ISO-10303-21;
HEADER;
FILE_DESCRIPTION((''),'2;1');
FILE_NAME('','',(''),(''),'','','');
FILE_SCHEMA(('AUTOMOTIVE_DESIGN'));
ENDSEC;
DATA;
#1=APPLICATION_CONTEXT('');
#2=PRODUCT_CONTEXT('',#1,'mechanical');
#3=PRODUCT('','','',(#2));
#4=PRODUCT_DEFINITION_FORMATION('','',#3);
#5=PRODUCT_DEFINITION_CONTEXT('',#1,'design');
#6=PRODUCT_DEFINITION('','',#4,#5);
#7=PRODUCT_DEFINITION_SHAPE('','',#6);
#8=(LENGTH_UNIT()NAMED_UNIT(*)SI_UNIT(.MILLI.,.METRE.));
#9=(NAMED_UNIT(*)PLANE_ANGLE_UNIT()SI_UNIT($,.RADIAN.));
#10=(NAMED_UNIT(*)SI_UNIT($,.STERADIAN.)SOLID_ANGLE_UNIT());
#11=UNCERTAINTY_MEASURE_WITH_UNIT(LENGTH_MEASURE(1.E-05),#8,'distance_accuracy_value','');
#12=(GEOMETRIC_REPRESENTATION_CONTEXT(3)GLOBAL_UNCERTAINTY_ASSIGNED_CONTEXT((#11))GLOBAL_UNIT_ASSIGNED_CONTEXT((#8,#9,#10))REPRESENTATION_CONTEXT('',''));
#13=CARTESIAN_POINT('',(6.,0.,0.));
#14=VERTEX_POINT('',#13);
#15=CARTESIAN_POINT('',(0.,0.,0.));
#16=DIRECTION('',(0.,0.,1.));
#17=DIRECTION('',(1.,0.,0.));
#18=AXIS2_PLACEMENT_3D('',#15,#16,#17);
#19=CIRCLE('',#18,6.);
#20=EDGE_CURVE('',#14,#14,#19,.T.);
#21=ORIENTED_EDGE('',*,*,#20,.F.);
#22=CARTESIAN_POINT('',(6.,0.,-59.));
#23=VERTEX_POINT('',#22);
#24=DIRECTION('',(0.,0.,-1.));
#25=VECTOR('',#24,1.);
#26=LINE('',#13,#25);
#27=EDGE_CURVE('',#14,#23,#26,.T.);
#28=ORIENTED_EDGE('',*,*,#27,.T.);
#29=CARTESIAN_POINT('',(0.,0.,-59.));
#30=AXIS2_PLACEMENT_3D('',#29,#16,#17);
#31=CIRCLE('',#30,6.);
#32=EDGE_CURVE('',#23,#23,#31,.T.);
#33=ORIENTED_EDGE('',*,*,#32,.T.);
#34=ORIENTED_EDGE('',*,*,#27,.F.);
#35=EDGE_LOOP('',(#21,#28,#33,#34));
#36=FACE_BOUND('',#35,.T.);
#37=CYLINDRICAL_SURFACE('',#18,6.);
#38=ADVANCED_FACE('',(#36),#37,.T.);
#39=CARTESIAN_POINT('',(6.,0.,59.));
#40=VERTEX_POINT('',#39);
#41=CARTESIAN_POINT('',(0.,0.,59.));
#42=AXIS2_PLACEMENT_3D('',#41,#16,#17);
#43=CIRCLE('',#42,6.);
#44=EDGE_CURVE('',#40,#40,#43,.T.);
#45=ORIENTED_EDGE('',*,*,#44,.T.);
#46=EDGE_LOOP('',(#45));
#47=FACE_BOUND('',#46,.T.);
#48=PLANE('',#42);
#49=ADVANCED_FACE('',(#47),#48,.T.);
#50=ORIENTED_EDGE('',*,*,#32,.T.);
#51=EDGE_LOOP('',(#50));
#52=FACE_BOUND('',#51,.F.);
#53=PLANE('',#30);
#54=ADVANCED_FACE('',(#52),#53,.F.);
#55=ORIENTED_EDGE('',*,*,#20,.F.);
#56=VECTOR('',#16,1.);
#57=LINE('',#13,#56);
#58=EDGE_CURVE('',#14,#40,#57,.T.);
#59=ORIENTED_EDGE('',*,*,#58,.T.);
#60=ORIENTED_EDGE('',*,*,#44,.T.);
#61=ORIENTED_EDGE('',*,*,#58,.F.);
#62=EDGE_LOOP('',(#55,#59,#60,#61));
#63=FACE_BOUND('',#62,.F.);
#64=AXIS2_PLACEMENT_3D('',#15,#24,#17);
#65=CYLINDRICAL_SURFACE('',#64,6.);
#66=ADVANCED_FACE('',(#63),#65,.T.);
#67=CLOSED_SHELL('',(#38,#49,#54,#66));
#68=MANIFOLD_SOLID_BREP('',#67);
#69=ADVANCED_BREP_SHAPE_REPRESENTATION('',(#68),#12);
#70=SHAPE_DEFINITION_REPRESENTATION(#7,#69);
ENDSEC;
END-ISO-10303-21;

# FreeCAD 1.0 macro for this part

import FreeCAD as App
import Part
import Sketcher

doc = App.newDocument("Part")
body = doc.addObject("PartDesign::Body", "Body")

sketch1 = body.newObject("Sketcher::SketchObject", "Sketch")
sketch1.AttachmentSupport = (doc.getObject("XY_Plane"), [""])
sketch1.MapMode = "FlatFace"
sketch1.addGeometry(Part.Circle(App.Vector(0, 0, 0), App.Vector(0, 0, 1), 6), False)
sketch1.addConstraint(Sketcher.Constraint("Coincident", 0, 3, -1, 1))
sketch1.addConstraint(Sketcher.Constraint("Diameter", 0, 12.0))
pad1 = body.newObject("PartDesign::Pad", "Pad")
pad1.Profile = sketch1
pad1.Length = 118
pad1.Midplane = True

doc.recompute()
